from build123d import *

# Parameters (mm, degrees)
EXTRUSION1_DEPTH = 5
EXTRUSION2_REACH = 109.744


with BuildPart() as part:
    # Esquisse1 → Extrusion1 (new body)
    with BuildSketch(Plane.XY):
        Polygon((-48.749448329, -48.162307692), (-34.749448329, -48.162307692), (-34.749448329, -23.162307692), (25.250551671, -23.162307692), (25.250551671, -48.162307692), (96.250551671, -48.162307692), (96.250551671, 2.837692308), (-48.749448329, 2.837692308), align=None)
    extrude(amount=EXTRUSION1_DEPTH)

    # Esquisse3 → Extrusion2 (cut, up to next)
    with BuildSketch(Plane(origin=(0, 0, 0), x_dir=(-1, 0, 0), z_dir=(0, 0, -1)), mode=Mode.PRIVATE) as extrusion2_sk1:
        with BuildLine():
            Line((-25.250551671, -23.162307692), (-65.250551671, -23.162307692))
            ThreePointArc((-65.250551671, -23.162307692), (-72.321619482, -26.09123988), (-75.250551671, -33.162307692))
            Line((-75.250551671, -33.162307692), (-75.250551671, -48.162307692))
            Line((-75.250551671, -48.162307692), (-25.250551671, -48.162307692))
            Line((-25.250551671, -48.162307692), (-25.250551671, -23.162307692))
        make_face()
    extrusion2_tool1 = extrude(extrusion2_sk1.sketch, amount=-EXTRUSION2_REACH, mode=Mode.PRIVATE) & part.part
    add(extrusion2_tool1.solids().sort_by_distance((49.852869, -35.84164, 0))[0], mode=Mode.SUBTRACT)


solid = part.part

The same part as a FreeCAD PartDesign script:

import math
import FreeCAD as App
import Part
import Sketcher

V = App.Vector

doc = App.newDocument("Part")
body = doc.addObject("PartDesign::Body", "Body")

# Sketch on XY plane
sketch1 = body.newObject("Sketcher::SketchObject", "Sketch")
sketch1.AttachmentSupport = (doc.getObject("XY_Plane"), [""])
sketch1.MapMode = "FlatFace"
sketch1.addGeometry([
    Part.LineSegment(V(-48.749448, -48.162308, 0), V(-34.749448, -48.162308, 0)),  # 0
    Part.LineSegment(V(-34.749448, -48.162308, 0), V(-34.749448, -23.162308, 0)),  # 1
    Part.LineSegment(V(-34.749448, -23.162308, 0), V(25.250552, -23.162308, 0)),  # 2
    Part.LineSegment(V(25.250552, -23.162308, 0), V(25.250552, -48.162308, 0)),  # 3
    Part.LineSegment(V(25.250552, -48.162308, 0), V(96.250552, -48.162308, 0)),  # 4
    Part.LineSegment(V(96.250552, -48.162308, 0), V(96.250552, 2.837692, 0)),  # 5
    Part.LineSegment(V(96.250552, 2.837692, 0), V(-48.749448, 2.837692, 0)),  # 6
    Part.LineSegment(V(-48.749448, 2.837692, 0), V(-48.749448, -48.162308, 0)),  # 7
], False)
sketch1.addConstraint([
    Sketcher.Constraint("Coincident", 0, 2, 1, 1),
    Sketcher.Constraint("Coincident", 1, 2, 2, 1),
    Sketcher.Constraint("Coincident", 2, 2, 3, 1),
    Sketcher.Constraint("Coincident", 3, 2, 4, 1),
    Sketcher.Constraint("Coincident", 4, 2, 5, 1),
    Sketcher.Constraint("Coincident", 5, 2, 6, 1),
    Sketcher.Constraint("Coincident", 6, 2, 7, 1),
    Sketcher.Constraint("Coincident", 7, 2, 0, 1),
    Sketcher.Constraint("Horizontal", 0),
    Sketcher.Constraint("Vertical", 1),
    Sketcher.Constraint("Horizontal", 2),
    Sketcher.Constraint("Vertical", 3),
    Sketcher.Constraint("Horizontal", 4),
    Sketcher.Constraint("Vertical", 5),
    Sketcher.Constraint("Horizontal", 6),
    Sketcher.Constraint("Vertical", 7),
    Sketcher.Constraint("Horizontal", 0, 2, 3, 2),
    Sketcher.Constraint("DistanceX", 0, 1, 0, 2, 14.0),
    Sketcher.Constraint("DistanceX", 2, 1, 2, 2, 60.0),
    Sketcher.Constraint("DistanceX", 4, 1, 4, 2, 71.0),
    Sketcher.Constraint("DistanceY", 1, 1, 1, 2, 25.0),
    Sketcher.Constraint("DistanceY", 5, 1, 5, 2, 51.0),
    Sketcher.Constraint("DistanceX", 0, 2, -1, 1, 34.749448),
    Sketcher.Constraint("DistanceY", 0, 2, -1, 1, 48.162308),
])
pad1 = body.newObject("PartDesign::Pad", "Pad")
pad1.Profile = sketch1
pad1.Length = 5

# Sketch on XY plane
sketch2 = body.newObject("Sketcher::SketchObject", "Sketch001")
sketch2.AttachmentSupport = (doc.getObject("XY_Plane"), [""])
sketch2.MapMode = "FlatFace"
sketch2.addGeometry([
    Part.LineSegment(V(25.250552, -23.162308, 0), V(65.250552, -23.162308, 0)),  # 0
    Part.ArcOfCircle(Part.Circle(V(65.250552, -33.162308, 0), V(0, 0, 1), 10), math.radians(0), math.radians(90)),  # 1
    Part.LineSegment(V(75.250552, -33.162308, 0), V(75.250552, -48.162308, 0)),  # 2
    Part.LineSegment(V(75.250552, -48.162308, 0), V(25.250552, -48.162308, 0)),  # 3
    Part.LineSegment(V(25.250552, -48.162308, 0), V(25.250552, -23.162308, 0)),  # 4
], False)
sketch2.addConstraint([
    Sketcher.Constraint("Tangent", 0, 2, 1, 2),
    Sketcher.Constraint("Tangent", 1, 1, 2, 1),
    Sketcher.Constraint("Coincident", 2, 2, 3, 1),
    Sketcher.Constraint("Coincident", 3, 2, 4, 1),
    Sketcher.Constraint("Coincident", 4, 2, 0, 1),
    Sketcher.Constraint("Horizontal", 0),
    Sketcher.Constraint("Vertical", 2),
    Sketcher.Constraint("Horizontal", 3),
    Sketcher.Constraint("Vertical", 4),
    Sketcher.Constraint("Radius", 1, 10.0),
    Sketcher.Constraint("DistanceX", 0, 1, 0, 2, 40.0),
    Sketcher.Constraint("DistanceY", 2, 2, 2, 1, 15.0),
    Sketcher.Constraint("DistanceX", -1, 1, 1, 3, 65.250552),
    Sketcher.Constraint("DistanceY", 1, 3, -1, 1, 33.162308),
])
pocket1 = body.newObject("PartDesign::Pocket", "Pocket")
pocket1.Profile = sketch2
pocket1.Type = "UpToFirst"
pocket1.Reversed = True

doc.recompute()
